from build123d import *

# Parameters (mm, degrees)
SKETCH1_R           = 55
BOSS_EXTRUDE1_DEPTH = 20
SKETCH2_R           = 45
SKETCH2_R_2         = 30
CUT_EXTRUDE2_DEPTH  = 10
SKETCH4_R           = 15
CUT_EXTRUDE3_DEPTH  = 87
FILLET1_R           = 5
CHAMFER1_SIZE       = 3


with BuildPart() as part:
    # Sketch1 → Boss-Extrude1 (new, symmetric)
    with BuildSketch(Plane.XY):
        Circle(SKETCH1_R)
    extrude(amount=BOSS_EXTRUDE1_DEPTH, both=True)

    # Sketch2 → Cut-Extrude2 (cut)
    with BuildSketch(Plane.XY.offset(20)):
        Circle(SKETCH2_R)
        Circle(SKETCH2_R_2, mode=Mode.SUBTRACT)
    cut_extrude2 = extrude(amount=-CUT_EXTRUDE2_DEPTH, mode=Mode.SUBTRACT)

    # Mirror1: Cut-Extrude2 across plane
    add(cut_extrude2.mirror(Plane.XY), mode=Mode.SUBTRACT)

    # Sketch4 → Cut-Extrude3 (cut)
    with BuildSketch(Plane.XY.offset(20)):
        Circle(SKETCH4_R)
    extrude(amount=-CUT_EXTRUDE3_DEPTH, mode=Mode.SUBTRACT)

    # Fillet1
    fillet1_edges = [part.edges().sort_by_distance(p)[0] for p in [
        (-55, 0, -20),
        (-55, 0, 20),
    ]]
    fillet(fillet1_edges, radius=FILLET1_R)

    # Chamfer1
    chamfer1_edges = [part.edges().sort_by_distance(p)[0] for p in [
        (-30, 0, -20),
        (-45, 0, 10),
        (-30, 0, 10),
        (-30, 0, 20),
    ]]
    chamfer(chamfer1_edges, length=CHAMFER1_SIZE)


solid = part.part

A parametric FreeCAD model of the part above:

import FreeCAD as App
import Part
import Sketcher

V = App.Vector
Q = App.Units.Quantity


def edges_at(feature, points):
    """Names of the edges that pass closest to the given points."""
    edges = feature.Shape.Edges
    near = lambda p: min(range(len(edges)), key=lambda i: edges[i].distToShape(Part.Vertex(*p))[0])
    return sorted({f"Edge{near(p) + 1}" for p in points})

doc = App.newDocument("Part")
body = doc.addObject("PartDesign::Body", "Body")

# Sketch on XY plane
sketch1 = body.newObject("Sketcher::SketchObject", "Sketch")
sketch1.AttachmentSupport = (doc.getObject("XY_Plane"), [""])
sketch1.MapMode = "FlatFace"
sketch1.addGeometry(Part.Circle(V(0, 0, 0), V(0, 0, 1), 55), False)
sketch1.addConstraint(Sketcher.Constraint("Coincident", 0, 3, -1, 1))
sketch1.addConstraint(Sketcher.Constraint("Diameter", 0, Q("110 mm")))
pad1 = body.newObject("PartDesign::Pad", "Pad")
pad1.Profile = sketch1
pad1.Length = 40
pad1.Midplane = True

# Sketch on XY plane
sketch2 = body.newObject("Sketcher::SketchObject", "Sketch001")
sketch2.AttachmentSupport = (doc.getObject("XY_Plane"), [""])
sketch2.MapMode = "FlatFace"
sketch2.AttachmentOffset = App.Placement(V(0, 0, 20), App.Rotation())
sketch2.addGeometry(Part.Circle(V(0, 0, 0), V(0, 0, 1), 45), False)
sketch2.addGeometry(Part.Circle(V(0, 0, 0), V(0, 0, 1), 30), False)
sketch2.addConstraint(Sketcher.Constraint("Coincident", 0, 3, -1, 1))
sketch2.addConstraint(Sketcher.Constraint("Coincident", 1, 3, -1, 1))
sketch2.addConstraint(Sketcher.Constraint("Diameter", 0, Q("90 mm")))
sketch2.addConstraint(Sketcher.Constraint("Diameter", 1, Q("60 mm")))
pocket1 = body.newObject("PartDesign::Pocket", "Pocket")
pocket1.Profile = sketch2
pocket1.Length = 10
doc.recompute()

mirrored = body.newObject("PartDesign::Mirrored", "Mirrored")
mirrored.Originals = [pocket1]
mirrored.MirrorPlane = (doc.getObject("XY_Plane"), [""])
body.Tip = mirrored

# Sketch on XY plane
sketch3 = body.newObject("Sketcher::SketchObject", "Sketch002")
sketch3.AttachmentSupport = (doc.getObject("XY_Plane"), [""])
sketch3.MapMode = "FlatFace"
sketch3.AttachmentOffset = App.Placement(V(0, 0, 20), App.Rotation())
sketch3.addGeometry(Part.Circle(V(0, 0, 0), V(0, 0, 1), 15), False)
sketch3.addConstraint(Sketcher.Constraint("Coincident", 0, 3, -1, 1))
sketch3.addConstraint(Sketcher.Constraint("Diameter", 0, Q("30 mm")))
pocket2 = body.newObject("PartDesign::Pocket", "Pocket001")
pocket2.Profile = sketch3
pocket2.Length = 87
doc.recompute()

fillet = body.newObject("PartDesign::Fillet", "Fillet")
fillet.Base = (pocket2, edges_at(pocket2, [(-55, 0, -20), (-55, 0, 20)]))
fillet.Radius = 5
doc.recompute()

chamfer = body.newObject("PartDesign::Chamfer", "Chamfer")
chamfer.Base = (fillet, edges_at(fillet, [
    (-30, 0, -20),
    (-45, 0, 10),
    (-30, 0, 10),
    (-30, 0, 20),
]))
chamfer.Size = 3

doc.recompute()
